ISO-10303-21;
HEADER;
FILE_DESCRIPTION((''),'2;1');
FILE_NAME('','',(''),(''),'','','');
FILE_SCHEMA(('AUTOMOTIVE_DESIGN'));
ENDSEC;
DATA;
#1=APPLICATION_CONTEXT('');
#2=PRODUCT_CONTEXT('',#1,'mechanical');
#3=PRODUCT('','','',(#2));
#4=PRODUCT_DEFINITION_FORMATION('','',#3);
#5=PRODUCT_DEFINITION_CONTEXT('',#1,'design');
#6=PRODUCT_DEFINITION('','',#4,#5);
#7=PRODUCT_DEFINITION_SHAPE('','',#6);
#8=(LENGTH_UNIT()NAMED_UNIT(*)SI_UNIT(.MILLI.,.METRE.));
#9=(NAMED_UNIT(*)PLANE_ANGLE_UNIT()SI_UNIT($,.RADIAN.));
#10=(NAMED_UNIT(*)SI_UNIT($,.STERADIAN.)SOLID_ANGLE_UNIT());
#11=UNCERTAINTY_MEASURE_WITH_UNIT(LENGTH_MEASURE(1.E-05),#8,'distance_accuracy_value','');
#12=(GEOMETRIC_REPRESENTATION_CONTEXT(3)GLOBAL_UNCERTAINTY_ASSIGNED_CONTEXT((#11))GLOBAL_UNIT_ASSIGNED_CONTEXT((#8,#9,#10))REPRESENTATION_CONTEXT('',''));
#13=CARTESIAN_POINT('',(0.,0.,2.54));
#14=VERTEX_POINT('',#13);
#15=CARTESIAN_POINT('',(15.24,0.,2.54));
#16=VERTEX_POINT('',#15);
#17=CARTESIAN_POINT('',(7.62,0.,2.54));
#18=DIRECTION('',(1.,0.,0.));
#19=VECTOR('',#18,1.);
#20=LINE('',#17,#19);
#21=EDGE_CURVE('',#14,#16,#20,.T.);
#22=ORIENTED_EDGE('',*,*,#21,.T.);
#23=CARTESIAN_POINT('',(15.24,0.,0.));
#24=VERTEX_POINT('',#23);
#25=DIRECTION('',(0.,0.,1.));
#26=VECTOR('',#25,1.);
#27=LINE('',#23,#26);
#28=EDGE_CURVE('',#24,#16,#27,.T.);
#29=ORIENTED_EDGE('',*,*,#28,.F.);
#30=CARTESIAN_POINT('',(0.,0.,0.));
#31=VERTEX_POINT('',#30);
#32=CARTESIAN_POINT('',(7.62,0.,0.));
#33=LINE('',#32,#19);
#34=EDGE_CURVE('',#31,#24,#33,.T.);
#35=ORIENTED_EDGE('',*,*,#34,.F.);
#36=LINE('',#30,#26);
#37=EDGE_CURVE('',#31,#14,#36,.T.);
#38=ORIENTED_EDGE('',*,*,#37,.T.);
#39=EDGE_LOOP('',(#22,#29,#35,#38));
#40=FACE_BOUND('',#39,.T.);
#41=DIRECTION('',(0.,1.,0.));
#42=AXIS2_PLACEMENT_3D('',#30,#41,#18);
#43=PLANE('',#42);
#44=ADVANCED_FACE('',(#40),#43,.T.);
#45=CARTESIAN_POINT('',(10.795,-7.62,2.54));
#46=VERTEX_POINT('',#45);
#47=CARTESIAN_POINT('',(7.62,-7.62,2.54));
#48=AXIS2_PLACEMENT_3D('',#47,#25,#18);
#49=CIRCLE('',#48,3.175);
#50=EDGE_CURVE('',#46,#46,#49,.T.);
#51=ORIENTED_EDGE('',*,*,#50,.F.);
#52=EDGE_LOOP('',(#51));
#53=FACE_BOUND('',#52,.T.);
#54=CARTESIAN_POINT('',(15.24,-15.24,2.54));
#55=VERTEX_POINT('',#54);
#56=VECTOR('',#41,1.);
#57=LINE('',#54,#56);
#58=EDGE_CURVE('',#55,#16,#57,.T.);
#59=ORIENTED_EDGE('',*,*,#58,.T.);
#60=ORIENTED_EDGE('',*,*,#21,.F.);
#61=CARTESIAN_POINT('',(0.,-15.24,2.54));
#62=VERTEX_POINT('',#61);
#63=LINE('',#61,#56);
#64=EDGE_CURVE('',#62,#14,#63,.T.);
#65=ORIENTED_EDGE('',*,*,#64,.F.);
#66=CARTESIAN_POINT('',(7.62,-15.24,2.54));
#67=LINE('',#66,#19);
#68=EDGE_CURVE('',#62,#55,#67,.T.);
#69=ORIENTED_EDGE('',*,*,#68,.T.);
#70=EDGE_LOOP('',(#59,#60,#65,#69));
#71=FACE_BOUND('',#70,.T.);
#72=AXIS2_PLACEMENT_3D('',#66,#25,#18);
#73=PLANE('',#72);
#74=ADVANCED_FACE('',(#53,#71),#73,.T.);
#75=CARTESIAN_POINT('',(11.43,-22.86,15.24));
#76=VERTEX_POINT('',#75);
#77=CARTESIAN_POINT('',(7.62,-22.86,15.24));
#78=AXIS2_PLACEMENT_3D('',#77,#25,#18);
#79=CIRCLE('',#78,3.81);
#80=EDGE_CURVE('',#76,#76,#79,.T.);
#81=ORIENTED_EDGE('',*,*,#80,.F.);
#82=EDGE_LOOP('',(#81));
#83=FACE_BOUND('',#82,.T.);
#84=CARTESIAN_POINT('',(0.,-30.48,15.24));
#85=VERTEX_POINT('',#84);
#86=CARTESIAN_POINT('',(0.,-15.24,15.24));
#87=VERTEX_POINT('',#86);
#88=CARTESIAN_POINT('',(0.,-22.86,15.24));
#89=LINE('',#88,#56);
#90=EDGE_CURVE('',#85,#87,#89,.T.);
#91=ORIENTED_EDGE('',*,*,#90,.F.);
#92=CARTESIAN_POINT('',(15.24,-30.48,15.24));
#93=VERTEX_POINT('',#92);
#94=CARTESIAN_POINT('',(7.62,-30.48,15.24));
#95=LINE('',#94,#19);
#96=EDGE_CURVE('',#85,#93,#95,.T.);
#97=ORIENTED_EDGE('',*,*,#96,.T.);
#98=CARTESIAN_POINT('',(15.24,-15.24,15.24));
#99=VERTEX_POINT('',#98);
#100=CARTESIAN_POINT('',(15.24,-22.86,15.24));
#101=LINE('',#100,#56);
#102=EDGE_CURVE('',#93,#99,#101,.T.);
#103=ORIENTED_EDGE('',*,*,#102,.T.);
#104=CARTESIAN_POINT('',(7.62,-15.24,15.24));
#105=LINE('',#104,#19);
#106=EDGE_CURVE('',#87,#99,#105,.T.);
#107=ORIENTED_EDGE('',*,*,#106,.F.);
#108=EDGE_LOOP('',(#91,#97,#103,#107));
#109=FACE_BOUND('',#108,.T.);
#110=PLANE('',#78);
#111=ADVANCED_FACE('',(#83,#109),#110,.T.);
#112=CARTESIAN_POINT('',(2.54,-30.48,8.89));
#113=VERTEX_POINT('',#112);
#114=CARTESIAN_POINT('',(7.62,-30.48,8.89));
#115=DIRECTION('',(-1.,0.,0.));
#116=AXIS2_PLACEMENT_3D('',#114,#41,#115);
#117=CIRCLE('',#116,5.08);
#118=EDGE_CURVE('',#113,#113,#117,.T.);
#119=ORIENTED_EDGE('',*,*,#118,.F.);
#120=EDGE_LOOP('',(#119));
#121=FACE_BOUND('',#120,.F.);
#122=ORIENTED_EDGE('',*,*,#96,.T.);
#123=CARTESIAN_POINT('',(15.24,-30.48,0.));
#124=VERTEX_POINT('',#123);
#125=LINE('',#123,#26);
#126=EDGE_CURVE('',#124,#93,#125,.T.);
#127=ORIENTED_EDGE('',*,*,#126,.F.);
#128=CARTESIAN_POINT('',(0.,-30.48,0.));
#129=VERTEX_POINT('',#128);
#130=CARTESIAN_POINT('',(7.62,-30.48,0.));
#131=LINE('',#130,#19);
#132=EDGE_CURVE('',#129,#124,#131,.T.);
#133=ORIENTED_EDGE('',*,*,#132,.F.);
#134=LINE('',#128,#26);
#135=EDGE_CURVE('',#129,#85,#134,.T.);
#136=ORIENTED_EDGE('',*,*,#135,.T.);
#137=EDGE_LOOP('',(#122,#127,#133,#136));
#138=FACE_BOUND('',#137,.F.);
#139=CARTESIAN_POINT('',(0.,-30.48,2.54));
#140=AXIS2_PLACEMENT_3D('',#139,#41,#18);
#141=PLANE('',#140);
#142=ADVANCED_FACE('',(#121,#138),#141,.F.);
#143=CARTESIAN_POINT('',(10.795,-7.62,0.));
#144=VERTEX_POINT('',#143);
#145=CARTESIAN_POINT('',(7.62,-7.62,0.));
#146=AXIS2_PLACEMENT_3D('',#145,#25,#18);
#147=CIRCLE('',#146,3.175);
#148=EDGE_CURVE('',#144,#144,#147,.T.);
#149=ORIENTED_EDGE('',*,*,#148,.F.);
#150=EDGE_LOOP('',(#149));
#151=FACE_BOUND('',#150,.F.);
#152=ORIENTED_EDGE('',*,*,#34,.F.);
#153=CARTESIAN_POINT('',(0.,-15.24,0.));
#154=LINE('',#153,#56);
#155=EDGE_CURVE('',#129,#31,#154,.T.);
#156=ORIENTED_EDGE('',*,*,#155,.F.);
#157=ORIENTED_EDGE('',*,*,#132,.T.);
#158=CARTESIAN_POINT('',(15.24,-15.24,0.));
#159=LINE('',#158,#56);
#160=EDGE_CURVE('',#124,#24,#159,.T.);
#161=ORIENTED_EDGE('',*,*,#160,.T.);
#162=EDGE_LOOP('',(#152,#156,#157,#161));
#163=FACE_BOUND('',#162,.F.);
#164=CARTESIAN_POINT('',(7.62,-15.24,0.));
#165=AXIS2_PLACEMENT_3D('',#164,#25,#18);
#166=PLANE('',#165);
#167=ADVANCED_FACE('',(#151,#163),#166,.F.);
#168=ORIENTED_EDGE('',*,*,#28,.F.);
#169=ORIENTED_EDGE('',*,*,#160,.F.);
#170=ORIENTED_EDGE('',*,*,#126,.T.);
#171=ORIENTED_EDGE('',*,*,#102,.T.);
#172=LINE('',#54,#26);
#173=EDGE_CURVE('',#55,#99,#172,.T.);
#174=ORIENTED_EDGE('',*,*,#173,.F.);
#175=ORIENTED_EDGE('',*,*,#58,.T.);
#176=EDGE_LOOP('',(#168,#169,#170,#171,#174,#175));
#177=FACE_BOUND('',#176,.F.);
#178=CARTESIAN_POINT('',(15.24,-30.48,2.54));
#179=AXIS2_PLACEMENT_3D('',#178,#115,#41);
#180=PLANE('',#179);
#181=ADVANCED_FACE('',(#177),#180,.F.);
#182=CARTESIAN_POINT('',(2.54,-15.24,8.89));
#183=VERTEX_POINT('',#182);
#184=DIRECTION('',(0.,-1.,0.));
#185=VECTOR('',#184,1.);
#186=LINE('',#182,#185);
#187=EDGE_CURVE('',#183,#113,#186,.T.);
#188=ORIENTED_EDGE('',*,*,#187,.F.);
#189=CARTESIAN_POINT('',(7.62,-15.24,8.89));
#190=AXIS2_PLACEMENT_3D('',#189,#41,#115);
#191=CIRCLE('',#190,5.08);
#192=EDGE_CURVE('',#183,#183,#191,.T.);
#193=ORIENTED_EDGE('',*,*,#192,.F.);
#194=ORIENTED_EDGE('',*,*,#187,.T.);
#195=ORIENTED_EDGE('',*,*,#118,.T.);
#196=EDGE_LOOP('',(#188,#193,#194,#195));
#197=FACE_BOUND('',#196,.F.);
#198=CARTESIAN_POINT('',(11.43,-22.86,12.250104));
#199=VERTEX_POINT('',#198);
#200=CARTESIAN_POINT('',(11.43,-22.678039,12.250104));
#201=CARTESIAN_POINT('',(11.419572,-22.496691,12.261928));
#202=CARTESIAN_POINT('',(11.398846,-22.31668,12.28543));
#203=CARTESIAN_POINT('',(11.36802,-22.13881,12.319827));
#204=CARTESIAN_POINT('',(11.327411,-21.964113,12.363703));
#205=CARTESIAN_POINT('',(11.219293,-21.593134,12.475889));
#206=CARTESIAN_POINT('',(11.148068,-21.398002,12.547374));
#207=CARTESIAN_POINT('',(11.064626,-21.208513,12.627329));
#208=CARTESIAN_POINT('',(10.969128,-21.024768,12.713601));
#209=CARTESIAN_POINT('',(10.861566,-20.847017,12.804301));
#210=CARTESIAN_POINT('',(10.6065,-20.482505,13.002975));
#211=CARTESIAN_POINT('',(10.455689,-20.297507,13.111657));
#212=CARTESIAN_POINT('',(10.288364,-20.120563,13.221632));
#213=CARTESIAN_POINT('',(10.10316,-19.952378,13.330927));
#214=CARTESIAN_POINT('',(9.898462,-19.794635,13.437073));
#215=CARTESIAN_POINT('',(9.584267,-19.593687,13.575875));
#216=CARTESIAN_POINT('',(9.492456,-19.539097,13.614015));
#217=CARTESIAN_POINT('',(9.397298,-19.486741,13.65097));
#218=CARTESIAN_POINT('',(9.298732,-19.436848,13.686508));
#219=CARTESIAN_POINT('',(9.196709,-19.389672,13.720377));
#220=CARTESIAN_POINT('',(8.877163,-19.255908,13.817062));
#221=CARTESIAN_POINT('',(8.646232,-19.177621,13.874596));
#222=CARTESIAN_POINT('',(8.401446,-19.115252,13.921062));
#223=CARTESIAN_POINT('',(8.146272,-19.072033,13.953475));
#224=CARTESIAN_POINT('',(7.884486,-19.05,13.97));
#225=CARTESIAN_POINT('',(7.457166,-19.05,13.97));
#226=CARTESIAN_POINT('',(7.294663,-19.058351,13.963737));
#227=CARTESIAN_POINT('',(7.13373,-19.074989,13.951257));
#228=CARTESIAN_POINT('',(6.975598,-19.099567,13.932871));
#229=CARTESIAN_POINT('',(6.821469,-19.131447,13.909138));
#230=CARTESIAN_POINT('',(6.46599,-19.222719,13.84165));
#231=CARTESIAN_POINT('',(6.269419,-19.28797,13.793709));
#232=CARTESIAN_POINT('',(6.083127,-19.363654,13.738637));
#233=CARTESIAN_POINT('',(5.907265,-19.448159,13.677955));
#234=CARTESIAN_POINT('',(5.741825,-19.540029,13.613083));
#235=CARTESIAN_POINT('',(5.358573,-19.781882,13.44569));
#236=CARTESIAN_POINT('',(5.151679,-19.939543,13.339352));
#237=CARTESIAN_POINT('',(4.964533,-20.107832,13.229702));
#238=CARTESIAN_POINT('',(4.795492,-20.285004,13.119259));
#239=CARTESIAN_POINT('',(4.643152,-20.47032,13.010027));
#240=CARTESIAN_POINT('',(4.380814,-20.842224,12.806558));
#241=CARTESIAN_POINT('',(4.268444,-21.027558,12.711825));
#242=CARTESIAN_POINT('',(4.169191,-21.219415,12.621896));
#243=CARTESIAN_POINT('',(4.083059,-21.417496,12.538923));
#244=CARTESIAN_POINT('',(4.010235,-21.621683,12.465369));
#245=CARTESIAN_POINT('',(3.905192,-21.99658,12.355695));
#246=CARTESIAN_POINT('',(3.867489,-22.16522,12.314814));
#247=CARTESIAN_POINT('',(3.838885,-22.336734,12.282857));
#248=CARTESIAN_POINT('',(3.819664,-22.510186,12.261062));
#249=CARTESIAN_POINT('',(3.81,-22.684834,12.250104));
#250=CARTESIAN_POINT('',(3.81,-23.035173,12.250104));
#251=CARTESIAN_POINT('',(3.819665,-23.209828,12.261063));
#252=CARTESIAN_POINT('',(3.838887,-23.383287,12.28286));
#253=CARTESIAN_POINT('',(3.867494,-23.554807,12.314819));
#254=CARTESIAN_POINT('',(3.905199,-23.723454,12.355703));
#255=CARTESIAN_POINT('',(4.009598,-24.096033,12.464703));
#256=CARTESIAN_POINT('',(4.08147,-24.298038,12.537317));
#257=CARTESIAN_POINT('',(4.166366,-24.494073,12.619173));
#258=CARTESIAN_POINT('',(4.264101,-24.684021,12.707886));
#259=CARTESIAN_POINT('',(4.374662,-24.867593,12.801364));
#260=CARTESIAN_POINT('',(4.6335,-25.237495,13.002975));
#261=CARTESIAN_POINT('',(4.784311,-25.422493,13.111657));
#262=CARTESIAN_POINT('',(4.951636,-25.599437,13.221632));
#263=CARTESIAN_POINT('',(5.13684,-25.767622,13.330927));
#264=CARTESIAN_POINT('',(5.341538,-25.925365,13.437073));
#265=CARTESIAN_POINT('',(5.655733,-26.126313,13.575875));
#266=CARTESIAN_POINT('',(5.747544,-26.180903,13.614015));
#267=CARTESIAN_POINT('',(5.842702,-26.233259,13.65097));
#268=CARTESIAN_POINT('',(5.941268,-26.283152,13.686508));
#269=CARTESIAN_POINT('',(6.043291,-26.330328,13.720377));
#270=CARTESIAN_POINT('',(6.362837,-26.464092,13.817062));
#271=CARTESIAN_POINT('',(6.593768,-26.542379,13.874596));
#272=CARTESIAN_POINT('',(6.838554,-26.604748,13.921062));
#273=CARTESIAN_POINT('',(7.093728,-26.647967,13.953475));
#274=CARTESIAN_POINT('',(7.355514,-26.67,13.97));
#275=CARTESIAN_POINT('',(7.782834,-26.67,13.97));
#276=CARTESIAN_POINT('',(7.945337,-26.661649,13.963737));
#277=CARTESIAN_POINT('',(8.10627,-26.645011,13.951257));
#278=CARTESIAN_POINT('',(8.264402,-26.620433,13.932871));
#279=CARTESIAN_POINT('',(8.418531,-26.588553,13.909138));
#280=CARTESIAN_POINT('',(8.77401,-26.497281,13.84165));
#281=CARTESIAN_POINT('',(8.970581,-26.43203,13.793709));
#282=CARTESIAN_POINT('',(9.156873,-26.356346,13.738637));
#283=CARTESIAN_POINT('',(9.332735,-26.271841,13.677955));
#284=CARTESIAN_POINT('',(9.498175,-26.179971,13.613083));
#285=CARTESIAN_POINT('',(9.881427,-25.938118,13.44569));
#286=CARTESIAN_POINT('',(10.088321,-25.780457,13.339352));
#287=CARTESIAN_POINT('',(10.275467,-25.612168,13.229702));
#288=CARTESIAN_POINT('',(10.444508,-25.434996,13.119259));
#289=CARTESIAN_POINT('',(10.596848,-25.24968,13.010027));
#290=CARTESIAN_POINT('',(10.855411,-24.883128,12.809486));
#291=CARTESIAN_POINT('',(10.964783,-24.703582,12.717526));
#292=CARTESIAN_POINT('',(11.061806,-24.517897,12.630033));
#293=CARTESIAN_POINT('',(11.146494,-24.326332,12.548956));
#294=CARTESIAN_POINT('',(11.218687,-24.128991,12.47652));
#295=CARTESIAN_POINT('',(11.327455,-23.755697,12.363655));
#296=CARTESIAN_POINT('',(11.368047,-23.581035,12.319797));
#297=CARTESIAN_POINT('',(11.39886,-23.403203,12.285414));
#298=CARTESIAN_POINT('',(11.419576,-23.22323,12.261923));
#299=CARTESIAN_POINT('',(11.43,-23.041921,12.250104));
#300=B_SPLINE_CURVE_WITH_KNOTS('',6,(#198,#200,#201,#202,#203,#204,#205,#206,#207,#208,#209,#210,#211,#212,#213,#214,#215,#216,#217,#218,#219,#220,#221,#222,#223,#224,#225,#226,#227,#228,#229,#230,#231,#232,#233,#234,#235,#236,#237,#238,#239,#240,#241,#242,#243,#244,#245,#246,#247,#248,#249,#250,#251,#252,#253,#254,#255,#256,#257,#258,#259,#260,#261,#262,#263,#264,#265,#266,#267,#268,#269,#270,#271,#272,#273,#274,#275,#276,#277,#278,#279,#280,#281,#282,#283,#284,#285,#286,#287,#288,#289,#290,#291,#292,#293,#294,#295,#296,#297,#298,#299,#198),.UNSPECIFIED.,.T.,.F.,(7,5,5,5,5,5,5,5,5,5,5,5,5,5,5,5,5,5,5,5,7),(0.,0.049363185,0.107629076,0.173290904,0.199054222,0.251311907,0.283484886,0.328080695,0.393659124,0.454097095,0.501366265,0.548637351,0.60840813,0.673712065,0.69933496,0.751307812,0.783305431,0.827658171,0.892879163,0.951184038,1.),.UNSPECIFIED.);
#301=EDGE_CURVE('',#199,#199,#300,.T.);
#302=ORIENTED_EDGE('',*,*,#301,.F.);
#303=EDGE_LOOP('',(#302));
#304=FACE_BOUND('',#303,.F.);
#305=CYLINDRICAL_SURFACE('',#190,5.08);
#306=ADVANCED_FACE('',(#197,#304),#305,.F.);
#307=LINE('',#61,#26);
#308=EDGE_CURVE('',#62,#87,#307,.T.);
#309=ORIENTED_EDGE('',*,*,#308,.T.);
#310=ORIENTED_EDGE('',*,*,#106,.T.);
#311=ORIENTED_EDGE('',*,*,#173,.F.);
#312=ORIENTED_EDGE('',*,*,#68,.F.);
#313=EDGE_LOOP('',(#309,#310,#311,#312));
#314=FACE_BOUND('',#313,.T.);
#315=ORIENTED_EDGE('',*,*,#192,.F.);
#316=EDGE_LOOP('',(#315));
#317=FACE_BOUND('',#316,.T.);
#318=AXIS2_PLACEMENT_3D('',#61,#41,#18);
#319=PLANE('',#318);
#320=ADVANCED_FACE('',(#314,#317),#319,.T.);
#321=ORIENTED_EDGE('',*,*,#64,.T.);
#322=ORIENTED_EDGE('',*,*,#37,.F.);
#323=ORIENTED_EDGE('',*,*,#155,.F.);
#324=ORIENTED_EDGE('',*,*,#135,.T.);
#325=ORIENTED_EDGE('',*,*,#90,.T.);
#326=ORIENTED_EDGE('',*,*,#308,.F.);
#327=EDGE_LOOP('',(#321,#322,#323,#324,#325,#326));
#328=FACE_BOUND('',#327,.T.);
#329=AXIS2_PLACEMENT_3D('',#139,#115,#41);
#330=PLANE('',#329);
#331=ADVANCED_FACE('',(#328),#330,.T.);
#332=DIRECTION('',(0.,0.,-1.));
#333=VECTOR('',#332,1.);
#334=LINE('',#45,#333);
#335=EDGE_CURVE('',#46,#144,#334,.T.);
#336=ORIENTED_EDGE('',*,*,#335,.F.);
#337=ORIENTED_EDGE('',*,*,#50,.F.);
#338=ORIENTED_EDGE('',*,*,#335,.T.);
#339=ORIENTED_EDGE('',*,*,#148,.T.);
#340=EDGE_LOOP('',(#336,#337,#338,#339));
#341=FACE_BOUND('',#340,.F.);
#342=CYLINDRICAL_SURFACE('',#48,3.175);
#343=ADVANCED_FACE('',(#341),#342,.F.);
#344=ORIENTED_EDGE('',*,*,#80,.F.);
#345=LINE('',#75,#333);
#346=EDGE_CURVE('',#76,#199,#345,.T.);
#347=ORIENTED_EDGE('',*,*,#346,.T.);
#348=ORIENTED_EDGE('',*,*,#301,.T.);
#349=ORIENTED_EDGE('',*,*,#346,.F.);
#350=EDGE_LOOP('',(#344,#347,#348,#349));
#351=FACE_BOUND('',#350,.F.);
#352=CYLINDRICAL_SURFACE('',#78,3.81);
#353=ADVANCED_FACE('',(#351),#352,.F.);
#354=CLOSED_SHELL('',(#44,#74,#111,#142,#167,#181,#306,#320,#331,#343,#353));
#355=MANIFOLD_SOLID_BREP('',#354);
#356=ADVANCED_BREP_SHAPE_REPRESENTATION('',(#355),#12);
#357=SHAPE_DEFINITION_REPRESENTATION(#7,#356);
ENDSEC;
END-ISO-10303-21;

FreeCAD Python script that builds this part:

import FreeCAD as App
import Part
import Sketcher
from FreeCAD import Vector
Q = App.Units.Quantity


def add_polygon(sketch, points):
    """Adds a closed chain of lines whose ends are joined by coincident constraints."""
    first, n = sketch.GeometryCount, len(points)
    for a, b in zip(points, points[1:] + points[:1]):
        sketch.addGeometry(Part.LineSegment(App.Vector(*a, 0), App.Vector(*b, 0)), False)
    for i in range(n):
        sketch.addConstraint(Sketcher.Constraint("Coincident", first + i, 2, first + (i + 1) % n, 1))

doc = App.newDocument("Part")
params = doc.addObject("Spreadsheet::Sheet", "Params")
for row, (alias, value) in enumerate([
    ("sketch1_width", "0.6 in"),
    ("sketch1_height", "1.2 in"),
    ("pad1_length", "0.1 in"),
    ("sketch2_width", "0.6 in"),
    ("pad2_length", "0.5 in"),
    ("sketch3_diameter", "0.25 in"),
    ("pocket1_length", "1 in"),
    ("sketch4_diameter", "0.4 in"),
    ("pocket2_length", "1 in"),
    ("sketch5_diameter", "0.3 in"),
    ("pocket3_length", "0.14 in"),
], start=1):
    params.set(f"A{row}", alias)
    params.set(f"B{row}", "=" + value)
    params.setAlias(f"B{row}", alias)

body = doc.addObject("PartDesign::Body", "Body")

# Sketch on XY plane
sketch1 = doc.addObject("Sketcher::SketchObject", "Sketch")
body.addObject(sketch1)
sketch1.AttachmentSupport = (doc.XY_Plane, [""])
sketch1.MapMode = "FlatFace"
add_polygon(sketch1, [(0, 0), (0, -30), (15, -30), (15, 0)])  # lines 0-3
sketch1.addConstraint([
    Sketcher.Constraint("Vertical", 0),
    Sketcher.Constraint("Horizontal", 1),
    Sketcher.Constraint("Vertical", 2),
    Sketcher.Constraint("Horizontal", 3),
    Sketcher.Constraint("Coincident", 3, 2, -1, 1),
    Sketcher.Constraint("DistanceX", 1, 1, 1, 2, Q("0.6 in")),
    Sketcher.Constraint("DistanceY", 0, 2, 0, 1, Q("1.2 in")),
])
sketch1.setExpression("Constraints[9]", "Params.sketch1_width")
sketch1.setExpression("Constraints[10]", "Params.sketch1_height")
pad1 = doc.addObject("PartDesign::Pad", "Pad")
body.addObject(pad1)
pad1.Profile = sketch1
pad1.setExpression("Length", "Params.pad1_length")

# Sketch on XY plane
sketch2 = doc.addObject("Sketcher::SketchObject", "Sketch001")
body.addObject(sketch2)
sketch2.AttachmentSupport = (doc.XY_Plane, [""])
sketch2.MapMode = "FlatFace"
sketch2.AttachmentOffset = App.Placement(Vector(0, 0, 0.1 * 25.4), App.Rotation())
add_polygon(sketch2, [(0, -15), (0, -30), (15, -30), (15, -15)])  # lines 0-3
sketch2.addConstraint([
    Sketcher.Constraint("Vertical", 0),
    Sketcher.Constraint("Horizontal", 1),
    Sketcher.Constraint("Vertical", 2),
    Sketcher.Constraint("Horizontal", 3),
    Sketcher.Constraint("PointOnObject", 0, 2, -2),
    Sketcher.Constraint("Equal", 3, 0),
    Sketcher.Constraint("DistanceX", 1, 1, 1, 2, Q("0.6 in")),
    Sketcher.Constraint("DistanceY", 0, 2, -1, 1, Q("1.2 in")),
])
sketch2.setExpression("Constraints[10]", "Params.sketch2_width")
pad2 = doc.addObject("PartDesign::Pad", "Pad001")
body.addObject(pad2)
pad2.Profile = sketch2
pad2.setExpression("Length", "Params.pad2_length")

# Sketch on XY plane
sketch3 = doc.addObject("Sketcher::SketchObject", "Sketch002")
body.addObject(sketch3)
sketch3.AttachmentSupport = (doc.XY_Plane, [""])
sketch3.MapMode = "FlatFace"
sketch3.AttachmentOffset = App.Placement(Vector(0, 0, 0.1 * 25.4), App.Rotation())
sketch3.addGeometry(Part.Circle(Vector(7.6, -7.6, 0), Vector(0, 0, 1), 3.2), False)
sketch3.addConstraint([
    Sketcher.Constraint("Diameter", 0, Q("0.25 in")),
    Sketcher.Constraint("DistanceX", -1, 1, 0, 3, Q("0.3 in")),
    Sketcher.Constraint("DistanceY", 0, 3, -1, 1, Q("0.3 in")),
])
sketch3.setExpression("Constraints[0]", "Params.sketch3_diameter")
pocket1 = doc.addObject("PartDesign::Pocket", "Pocket")
body.addObject(pocket1)
pocket1.Profile = sketch3
pocket1.setExpression("Length", "Params.pocket1_length")

# Sketch on XZ plane
sketch4 = doc.addObject("Sketcher::SketchObject", "Sketch003")
body.addObject(sketch4)
sketch4.AttachmentSupport = (doc.XZ_Plane, [""])
sketch4.MapMode = "FlatFace"
sketch4.AttachmentOffset = App.Placement(Vector(0, 0, 0.6 * 25.4), App.Rotation())
sketch4.addGeometry(Part.Circle(Vector(8, 9, 0), Vector(0, 0, 1), 5), False)
sketch4.addConstraint([
    Sketcher.Constraint("Diameter", 0, Q("0.4 in")),
    Sketcher.Constraint("DistanceX", -1, 1, 0, 3, Q("0.3 in")),
    Sketcher.Constraint("DistanceY", -1, 1, 0, 3, Q("0.35 in")),
])
sketch4.setExpression("Constraints[0]", "Params.sketch4_diameter")
pocket2 = doc.addObject("PartDesign::Pocket", "Pocket001")
body.addObject(pocket2)
pocket2.Profile = sketch4
pocket2.setExpression("Length", "Params.pocket2_length")
pocket2.Reversed = True

# Sketch on XY plane
sketch5 = doc.addObject("Sketcher::SketchObject", "Sketch004")
body.addObject(sketch5)
sketch5.AttachmentSupport = (doc.XY_Plane, [""])
sketch5.MapMode = "FlatFace"
sketch5.AttachmentOffset = App.Placement(Vector(0, 0, 0.6 * 25.4), App.Rotation())
sketch5.addGeometry(Part.Circle(Vector(7.6, -22.9, 0), Vector(0, 0, 1), 3.8), False)
sketch5.addConstraint([
    Sketcher.Constraint("Diameter", 0, Q("0.3 in")),
    Sketcher.Constraint("DistanceX", -1, 1, 0, 3, Q("0.3 in")),
    Sketcher.Constraint("DistanceY", 0, 3, -1, 1, Q("0.9 in")),
])
sketch5.setExpression("Constraints[0]", "Params.sketch5_diameter")
pocket3 = doc.addObject("PartDesign::Pocket", "Pocket002")
body.addObject(pocket3)
pocket3.Profile = sketch5
pocket3.setExpression("Length", "Params.pocket3_length")

doc.recompute()
